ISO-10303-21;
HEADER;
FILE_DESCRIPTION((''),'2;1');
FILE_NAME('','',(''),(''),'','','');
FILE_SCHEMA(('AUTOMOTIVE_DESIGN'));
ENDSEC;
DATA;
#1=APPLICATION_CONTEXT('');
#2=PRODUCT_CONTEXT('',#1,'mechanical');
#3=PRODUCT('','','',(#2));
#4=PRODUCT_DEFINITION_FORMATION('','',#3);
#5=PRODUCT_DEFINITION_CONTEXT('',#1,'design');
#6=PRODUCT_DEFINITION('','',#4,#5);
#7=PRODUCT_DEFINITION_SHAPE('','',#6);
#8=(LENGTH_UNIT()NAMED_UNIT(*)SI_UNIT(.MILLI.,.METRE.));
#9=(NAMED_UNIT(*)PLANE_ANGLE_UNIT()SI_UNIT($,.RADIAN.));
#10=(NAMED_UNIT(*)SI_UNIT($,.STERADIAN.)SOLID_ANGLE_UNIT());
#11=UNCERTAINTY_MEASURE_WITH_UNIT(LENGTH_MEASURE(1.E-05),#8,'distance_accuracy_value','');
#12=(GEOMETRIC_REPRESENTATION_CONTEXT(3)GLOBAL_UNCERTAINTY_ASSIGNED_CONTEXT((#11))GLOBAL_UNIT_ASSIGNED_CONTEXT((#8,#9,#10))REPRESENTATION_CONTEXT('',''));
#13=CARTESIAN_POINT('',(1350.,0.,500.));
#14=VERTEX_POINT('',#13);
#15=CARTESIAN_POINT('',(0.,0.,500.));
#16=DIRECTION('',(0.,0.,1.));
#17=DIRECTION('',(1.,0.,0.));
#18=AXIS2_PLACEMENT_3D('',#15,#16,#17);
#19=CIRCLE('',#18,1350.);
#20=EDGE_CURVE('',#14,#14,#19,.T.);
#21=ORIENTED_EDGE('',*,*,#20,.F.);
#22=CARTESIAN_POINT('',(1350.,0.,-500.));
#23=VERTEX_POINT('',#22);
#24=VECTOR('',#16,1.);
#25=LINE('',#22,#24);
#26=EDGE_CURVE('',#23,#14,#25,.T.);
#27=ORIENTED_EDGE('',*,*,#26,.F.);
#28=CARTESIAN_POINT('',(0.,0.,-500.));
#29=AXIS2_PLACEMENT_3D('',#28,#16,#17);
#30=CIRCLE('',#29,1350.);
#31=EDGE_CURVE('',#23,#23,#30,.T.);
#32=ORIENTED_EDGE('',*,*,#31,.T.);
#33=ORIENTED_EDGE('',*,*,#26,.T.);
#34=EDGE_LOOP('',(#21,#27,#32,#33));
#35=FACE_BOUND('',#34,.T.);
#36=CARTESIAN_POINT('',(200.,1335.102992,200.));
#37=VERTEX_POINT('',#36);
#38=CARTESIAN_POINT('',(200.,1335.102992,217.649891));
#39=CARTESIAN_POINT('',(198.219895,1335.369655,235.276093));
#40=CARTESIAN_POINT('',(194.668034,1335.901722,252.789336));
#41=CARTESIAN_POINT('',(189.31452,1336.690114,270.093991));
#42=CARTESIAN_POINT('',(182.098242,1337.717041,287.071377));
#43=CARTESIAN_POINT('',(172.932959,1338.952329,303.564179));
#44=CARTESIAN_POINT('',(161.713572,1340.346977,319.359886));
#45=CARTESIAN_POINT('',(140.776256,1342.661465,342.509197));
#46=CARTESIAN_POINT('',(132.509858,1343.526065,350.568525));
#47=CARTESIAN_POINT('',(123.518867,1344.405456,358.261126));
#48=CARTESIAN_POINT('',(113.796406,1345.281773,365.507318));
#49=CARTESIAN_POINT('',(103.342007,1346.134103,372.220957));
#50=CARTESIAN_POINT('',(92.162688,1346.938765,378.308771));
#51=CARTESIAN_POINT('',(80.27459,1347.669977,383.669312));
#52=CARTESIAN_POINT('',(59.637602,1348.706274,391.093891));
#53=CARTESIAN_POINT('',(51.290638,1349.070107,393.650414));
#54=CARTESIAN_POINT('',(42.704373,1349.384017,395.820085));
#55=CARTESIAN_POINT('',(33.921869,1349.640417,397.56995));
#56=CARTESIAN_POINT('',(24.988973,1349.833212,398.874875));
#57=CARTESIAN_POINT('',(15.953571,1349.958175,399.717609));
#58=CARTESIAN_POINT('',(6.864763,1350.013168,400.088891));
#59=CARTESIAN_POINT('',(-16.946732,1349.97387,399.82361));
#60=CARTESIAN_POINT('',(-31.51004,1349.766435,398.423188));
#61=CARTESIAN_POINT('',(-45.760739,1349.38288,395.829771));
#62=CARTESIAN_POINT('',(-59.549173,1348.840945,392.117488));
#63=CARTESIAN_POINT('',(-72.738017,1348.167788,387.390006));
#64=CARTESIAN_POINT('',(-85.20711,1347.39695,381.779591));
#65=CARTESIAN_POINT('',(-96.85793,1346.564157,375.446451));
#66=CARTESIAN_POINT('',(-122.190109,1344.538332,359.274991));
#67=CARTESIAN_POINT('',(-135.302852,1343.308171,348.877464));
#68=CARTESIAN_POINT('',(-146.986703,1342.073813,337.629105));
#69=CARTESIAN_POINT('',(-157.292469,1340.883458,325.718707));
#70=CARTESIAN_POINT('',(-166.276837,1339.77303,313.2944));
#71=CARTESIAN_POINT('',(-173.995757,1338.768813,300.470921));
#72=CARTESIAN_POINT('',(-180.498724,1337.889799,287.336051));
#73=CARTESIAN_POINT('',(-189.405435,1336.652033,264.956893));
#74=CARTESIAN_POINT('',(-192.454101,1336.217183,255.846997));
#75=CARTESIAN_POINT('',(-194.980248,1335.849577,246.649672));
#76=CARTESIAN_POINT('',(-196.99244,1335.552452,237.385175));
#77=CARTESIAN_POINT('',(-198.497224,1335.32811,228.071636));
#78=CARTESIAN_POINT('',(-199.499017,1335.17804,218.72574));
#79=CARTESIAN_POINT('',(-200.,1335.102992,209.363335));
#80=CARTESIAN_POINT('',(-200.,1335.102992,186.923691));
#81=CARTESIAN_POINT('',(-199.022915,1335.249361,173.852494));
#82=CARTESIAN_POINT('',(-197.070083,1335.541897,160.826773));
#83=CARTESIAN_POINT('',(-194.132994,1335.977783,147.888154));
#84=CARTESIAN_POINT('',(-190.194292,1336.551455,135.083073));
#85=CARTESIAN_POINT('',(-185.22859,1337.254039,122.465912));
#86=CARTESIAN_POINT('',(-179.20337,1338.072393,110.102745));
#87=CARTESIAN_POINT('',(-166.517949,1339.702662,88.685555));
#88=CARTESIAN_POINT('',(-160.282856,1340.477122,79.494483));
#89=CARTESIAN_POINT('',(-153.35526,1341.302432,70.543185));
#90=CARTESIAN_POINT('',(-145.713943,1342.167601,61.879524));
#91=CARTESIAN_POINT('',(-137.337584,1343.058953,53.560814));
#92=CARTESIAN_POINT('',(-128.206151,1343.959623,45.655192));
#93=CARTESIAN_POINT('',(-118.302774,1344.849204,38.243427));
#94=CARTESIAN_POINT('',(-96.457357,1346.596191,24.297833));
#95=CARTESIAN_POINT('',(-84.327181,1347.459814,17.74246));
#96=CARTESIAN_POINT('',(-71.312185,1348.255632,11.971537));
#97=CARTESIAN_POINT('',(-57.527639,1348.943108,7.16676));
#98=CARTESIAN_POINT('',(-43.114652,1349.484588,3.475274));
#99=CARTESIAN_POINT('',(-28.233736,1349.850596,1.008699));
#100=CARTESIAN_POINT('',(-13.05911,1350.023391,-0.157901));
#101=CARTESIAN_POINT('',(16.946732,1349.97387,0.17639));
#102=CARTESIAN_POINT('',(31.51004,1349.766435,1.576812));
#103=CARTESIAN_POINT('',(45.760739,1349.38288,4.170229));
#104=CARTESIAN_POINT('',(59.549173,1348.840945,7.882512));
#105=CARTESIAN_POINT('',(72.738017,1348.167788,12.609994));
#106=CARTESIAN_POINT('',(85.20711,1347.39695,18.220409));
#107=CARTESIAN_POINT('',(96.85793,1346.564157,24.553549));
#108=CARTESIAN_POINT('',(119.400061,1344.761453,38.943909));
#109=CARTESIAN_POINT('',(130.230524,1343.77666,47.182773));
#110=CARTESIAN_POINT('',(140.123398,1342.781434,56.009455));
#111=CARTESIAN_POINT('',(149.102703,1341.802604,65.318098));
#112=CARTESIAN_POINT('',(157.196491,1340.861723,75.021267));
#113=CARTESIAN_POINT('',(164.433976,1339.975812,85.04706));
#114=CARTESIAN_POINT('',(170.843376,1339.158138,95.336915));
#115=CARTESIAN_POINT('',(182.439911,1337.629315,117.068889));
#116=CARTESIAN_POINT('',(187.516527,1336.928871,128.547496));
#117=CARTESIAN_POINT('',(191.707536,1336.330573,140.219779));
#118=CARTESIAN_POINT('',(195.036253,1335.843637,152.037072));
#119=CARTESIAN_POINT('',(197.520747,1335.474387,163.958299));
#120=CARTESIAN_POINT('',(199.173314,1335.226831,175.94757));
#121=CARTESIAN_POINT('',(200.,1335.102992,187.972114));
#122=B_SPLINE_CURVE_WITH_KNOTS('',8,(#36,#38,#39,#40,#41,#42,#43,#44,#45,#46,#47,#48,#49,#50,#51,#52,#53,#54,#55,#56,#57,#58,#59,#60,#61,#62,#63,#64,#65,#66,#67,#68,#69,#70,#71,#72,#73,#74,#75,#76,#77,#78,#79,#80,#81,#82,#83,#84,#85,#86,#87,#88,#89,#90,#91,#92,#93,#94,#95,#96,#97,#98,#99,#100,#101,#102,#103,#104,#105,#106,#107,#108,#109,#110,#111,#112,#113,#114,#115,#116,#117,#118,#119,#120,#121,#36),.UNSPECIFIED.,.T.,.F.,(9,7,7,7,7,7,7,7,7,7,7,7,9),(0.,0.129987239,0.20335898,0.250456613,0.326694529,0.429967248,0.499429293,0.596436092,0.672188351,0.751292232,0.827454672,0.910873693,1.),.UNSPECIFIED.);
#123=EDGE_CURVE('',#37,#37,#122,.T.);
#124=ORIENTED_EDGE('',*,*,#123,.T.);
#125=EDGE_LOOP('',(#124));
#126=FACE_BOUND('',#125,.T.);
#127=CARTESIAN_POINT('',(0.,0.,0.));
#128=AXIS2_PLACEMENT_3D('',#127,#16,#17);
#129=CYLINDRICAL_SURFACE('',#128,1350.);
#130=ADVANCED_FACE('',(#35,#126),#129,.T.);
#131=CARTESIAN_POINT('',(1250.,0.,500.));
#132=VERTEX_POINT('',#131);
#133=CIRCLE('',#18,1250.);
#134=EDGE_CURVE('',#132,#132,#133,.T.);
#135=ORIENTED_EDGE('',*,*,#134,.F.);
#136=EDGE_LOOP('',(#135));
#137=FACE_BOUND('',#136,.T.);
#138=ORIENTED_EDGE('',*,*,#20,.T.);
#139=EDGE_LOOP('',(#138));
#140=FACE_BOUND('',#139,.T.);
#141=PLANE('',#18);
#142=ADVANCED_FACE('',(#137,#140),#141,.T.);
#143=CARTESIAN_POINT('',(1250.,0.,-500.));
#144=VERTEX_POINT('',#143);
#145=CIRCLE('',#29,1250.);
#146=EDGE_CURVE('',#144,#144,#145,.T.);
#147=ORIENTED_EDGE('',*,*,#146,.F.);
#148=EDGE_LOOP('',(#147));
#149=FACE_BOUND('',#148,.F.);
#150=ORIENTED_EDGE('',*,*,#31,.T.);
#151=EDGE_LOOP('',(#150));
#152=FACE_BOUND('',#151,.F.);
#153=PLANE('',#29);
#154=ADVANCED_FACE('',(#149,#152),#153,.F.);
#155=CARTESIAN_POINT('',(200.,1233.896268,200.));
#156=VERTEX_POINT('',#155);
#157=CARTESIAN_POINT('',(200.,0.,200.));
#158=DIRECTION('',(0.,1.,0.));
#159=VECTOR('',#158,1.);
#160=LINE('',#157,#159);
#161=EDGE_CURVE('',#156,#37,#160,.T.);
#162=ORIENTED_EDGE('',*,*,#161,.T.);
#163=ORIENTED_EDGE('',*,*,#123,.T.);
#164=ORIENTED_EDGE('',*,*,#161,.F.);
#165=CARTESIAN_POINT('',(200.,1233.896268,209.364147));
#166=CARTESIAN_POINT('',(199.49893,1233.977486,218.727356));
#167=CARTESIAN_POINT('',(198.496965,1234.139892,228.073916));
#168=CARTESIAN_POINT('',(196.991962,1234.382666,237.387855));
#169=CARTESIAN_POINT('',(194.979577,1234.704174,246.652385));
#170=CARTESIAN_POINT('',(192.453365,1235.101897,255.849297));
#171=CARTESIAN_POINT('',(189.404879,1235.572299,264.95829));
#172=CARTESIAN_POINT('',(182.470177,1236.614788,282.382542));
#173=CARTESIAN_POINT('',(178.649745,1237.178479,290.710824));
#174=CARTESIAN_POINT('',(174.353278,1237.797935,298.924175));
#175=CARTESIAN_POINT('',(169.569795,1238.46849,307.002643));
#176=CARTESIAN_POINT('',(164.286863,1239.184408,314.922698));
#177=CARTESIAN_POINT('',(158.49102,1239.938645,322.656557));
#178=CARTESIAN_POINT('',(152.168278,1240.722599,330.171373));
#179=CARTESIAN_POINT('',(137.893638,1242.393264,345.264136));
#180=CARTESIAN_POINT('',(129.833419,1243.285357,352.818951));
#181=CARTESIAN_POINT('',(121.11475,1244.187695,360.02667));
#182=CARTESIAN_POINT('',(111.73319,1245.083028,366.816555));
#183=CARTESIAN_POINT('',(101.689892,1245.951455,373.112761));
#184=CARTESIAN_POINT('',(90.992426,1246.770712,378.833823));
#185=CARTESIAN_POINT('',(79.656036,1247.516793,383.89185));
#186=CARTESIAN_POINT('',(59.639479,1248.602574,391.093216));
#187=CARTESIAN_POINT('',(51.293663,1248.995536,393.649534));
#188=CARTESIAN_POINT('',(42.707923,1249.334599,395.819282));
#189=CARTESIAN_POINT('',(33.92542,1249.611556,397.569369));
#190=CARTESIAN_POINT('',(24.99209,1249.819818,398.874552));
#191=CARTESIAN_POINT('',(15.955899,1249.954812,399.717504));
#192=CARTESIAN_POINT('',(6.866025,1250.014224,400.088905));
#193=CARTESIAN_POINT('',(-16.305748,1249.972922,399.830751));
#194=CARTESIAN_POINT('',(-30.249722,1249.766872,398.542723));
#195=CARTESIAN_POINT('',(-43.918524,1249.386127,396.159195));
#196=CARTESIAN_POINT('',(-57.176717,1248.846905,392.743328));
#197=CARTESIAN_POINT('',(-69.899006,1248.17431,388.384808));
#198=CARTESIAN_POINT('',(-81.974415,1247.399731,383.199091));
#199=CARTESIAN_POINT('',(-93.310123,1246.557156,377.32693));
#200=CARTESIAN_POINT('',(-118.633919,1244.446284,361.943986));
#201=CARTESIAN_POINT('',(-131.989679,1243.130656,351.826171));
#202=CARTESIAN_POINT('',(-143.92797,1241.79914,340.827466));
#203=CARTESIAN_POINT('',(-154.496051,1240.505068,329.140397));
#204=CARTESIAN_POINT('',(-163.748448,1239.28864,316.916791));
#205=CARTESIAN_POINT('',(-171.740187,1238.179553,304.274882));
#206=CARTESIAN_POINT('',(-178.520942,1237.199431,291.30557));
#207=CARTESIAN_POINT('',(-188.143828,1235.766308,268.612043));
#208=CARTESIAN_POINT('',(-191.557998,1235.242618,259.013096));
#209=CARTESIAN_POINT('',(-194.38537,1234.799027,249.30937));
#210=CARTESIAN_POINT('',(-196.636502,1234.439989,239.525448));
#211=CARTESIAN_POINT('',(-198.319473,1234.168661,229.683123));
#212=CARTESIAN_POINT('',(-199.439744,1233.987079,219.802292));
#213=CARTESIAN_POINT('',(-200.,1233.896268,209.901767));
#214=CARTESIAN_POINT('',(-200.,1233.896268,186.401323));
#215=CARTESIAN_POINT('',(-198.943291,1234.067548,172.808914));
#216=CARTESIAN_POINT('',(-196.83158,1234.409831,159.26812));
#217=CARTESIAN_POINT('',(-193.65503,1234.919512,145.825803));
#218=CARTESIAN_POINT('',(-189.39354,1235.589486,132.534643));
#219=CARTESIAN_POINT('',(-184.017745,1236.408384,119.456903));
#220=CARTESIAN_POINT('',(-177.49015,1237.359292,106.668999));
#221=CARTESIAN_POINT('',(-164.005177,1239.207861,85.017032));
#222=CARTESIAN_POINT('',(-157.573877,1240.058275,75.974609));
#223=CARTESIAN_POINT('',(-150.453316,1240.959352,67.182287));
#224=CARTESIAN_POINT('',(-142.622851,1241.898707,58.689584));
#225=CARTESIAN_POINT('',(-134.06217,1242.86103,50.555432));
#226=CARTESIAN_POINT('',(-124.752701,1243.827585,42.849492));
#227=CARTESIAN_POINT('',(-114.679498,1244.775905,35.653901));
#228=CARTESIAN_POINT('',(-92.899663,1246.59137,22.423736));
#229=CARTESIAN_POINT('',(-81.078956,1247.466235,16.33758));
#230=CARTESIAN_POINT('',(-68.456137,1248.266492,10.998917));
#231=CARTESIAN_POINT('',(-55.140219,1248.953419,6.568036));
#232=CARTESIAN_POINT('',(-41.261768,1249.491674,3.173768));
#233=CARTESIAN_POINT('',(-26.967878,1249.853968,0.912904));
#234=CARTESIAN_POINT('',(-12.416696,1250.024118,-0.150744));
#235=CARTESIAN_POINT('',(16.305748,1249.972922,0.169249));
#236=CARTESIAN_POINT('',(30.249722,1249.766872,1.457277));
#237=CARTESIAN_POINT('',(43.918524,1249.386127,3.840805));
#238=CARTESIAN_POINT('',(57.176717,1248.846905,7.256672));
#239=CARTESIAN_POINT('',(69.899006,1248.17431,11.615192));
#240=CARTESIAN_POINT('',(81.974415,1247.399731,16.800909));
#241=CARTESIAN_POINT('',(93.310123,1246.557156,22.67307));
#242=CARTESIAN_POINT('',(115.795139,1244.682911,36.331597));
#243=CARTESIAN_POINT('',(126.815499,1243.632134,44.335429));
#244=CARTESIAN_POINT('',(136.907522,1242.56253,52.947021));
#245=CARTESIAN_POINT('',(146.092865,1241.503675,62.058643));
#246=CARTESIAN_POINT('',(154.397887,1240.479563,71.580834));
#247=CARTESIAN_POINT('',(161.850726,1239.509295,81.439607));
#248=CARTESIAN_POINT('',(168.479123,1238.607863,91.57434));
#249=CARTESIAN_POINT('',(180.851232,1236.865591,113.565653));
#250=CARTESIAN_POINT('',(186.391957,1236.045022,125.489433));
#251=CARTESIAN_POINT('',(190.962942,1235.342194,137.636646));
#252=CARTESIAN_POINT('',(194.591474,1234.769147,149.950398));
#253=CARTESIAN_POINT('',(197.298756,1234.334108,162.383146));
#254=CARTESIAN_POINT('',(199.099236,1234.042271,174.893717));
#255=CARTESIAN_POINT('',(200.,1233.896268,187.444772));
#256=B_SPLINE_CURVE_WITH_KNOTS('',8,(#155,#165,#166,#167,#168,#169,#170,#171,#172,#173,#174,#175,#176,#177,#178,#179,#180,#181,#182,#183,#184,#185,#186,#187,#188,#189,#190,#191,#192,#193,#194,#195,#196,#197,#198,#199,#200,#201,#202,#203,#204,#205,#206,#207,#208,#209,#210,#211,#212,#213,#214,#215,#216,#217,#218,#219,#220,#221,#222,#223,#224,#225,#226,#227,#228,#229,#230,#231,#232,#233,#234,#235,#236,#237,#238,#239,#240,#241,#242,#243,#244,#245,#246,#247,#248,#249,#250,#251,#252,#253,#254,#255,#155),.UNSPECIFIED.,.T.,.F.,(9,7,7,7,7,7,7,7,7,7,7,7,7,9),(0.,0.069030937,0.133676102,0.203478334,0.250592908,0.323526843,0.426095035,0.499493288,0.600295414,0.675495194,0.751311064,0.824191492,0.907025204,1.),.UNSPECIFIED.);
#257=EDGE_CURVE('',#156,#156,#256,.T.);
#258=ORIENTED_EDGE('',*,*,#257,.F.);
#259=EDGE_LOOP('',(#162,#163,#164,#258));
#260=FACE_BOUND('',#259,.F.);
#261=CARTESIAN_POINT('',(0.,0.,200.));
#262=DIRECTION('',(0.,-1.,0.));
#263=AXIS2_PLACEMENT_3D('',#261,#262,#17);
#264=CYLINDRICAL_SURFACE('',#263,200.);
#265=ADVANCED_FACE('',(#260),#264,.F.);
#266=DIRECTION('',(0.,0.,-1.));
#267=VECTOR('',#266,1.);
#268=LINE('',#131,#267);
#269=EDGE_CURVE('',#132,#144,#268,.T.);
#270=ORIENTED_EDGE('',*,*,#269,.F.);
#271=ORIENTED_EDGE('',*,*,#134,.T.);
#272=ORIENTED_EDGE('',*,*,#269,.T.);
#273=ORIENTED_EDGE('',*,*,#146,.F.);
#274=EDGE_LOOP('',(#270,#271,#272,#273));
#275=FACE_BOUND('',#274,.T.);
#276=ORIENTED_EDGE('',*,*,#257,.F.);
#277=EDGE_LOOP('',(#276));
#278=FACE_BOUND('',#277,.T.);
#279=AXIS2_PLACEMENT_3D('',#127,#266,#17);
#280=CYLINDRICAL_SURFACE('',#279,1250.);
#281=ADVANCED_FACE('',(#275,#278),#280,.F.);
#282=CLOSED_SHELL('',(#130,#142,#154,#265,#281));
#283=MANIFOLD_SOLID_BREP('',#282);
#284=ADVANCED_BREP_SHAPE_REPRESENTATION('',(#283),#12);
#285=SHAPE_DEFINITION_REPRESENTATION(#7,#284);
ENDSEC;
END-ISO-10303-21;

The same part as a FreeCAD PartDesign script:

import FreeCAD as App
import Part
import Sketcher
from FreeCAD import Vector

doc = App.newDocument("Part")
params = doc.addObject("Spreadsheet::Sheet", "Params")
for row, (alias, value) in enumerate([
    ("sketch1_diameter", "2700 mm"),
    ("sketch1_diameter2", "2500 mm"),
    ("pad1_length", "1000 mm"),
    ("sketch2_diameter", "400 mm"),
    ("pocket1_length", "2000 mm"),
], start=1):
    params.set(f"A{row}", alias)
    params.set(f"B{row}", "=" + value)
    params.setAlias(f"B{row}", alias)

body = doc.addObject("PartDesign::Body", "Body")

sketch1 = body.newObject("Sketcher::SketchObject", "Sketch")
sketch1.AttachmentSupport = (doc.getObject("XY_Plane"), [""])
sketch1.MapMode = "FlatFace"
sketch1.addGeometry([
    Part.Circle(Vector(0, 0, 0), Vector(0, 0, 1), 1350),
    Part.Circle(Vector(0, 0, 0), Vector(0, 0, 1), 1250),
], False)
sketch1.addConstraint([
    Sketcher.Constraint("Coincident", 0, 3, -1, 1),
    Sketcher.Constraint("Coincident", 1, 3, -1, 1),
    Sketcher.Constraint("Diameter", 0, 2700.0),
    Sketcher.Constraint("Diameter", 1, 2500.0),
])
sketch1.setExpression("Constraints[2]", "Params.sketch1_diameter")
sketch1.setExpression("Constraints[3]", "Params.sketch1_diameter2")
pad1 = body.newObject("PartDesign::Pad", "Pad")
pad1.Profile = sketch1
pad1.setExpression("Length", "Params.pad1_length")
pad1.Midplane = True

sketch2 = body.newObject("Sketcher::SketchObject", "Sketch001")
sketch2.AttachmentSupport = (doc.getObject("XZ_Plane"), [""])
sketch2.MapMode = "FlatFace"
sketch2.addGeometry(Part.Circle(Vector(0, 200, 0), Vector(0, 0, 1), 200), False)
sketch2.addConstraint([
    Sketcher.Constraint("PointOnObject", 0, 3, -2),
    Sketcher.Constraint("Diameter", 0, 400.0),
    Sketcher.Constraint("DistanceY", -1, 1, 0, 3, 200.0),
])
sketch2.setExpression("Constraints[1]", "Params.sketch2_diameter")
pocket1 = body.newObject("PartDesign::Pocket", "Pocket")
pocket1.Profile = sketch2
pocket1.setExpression("Length", "Params.pocket1_length")

doc.recompute()
